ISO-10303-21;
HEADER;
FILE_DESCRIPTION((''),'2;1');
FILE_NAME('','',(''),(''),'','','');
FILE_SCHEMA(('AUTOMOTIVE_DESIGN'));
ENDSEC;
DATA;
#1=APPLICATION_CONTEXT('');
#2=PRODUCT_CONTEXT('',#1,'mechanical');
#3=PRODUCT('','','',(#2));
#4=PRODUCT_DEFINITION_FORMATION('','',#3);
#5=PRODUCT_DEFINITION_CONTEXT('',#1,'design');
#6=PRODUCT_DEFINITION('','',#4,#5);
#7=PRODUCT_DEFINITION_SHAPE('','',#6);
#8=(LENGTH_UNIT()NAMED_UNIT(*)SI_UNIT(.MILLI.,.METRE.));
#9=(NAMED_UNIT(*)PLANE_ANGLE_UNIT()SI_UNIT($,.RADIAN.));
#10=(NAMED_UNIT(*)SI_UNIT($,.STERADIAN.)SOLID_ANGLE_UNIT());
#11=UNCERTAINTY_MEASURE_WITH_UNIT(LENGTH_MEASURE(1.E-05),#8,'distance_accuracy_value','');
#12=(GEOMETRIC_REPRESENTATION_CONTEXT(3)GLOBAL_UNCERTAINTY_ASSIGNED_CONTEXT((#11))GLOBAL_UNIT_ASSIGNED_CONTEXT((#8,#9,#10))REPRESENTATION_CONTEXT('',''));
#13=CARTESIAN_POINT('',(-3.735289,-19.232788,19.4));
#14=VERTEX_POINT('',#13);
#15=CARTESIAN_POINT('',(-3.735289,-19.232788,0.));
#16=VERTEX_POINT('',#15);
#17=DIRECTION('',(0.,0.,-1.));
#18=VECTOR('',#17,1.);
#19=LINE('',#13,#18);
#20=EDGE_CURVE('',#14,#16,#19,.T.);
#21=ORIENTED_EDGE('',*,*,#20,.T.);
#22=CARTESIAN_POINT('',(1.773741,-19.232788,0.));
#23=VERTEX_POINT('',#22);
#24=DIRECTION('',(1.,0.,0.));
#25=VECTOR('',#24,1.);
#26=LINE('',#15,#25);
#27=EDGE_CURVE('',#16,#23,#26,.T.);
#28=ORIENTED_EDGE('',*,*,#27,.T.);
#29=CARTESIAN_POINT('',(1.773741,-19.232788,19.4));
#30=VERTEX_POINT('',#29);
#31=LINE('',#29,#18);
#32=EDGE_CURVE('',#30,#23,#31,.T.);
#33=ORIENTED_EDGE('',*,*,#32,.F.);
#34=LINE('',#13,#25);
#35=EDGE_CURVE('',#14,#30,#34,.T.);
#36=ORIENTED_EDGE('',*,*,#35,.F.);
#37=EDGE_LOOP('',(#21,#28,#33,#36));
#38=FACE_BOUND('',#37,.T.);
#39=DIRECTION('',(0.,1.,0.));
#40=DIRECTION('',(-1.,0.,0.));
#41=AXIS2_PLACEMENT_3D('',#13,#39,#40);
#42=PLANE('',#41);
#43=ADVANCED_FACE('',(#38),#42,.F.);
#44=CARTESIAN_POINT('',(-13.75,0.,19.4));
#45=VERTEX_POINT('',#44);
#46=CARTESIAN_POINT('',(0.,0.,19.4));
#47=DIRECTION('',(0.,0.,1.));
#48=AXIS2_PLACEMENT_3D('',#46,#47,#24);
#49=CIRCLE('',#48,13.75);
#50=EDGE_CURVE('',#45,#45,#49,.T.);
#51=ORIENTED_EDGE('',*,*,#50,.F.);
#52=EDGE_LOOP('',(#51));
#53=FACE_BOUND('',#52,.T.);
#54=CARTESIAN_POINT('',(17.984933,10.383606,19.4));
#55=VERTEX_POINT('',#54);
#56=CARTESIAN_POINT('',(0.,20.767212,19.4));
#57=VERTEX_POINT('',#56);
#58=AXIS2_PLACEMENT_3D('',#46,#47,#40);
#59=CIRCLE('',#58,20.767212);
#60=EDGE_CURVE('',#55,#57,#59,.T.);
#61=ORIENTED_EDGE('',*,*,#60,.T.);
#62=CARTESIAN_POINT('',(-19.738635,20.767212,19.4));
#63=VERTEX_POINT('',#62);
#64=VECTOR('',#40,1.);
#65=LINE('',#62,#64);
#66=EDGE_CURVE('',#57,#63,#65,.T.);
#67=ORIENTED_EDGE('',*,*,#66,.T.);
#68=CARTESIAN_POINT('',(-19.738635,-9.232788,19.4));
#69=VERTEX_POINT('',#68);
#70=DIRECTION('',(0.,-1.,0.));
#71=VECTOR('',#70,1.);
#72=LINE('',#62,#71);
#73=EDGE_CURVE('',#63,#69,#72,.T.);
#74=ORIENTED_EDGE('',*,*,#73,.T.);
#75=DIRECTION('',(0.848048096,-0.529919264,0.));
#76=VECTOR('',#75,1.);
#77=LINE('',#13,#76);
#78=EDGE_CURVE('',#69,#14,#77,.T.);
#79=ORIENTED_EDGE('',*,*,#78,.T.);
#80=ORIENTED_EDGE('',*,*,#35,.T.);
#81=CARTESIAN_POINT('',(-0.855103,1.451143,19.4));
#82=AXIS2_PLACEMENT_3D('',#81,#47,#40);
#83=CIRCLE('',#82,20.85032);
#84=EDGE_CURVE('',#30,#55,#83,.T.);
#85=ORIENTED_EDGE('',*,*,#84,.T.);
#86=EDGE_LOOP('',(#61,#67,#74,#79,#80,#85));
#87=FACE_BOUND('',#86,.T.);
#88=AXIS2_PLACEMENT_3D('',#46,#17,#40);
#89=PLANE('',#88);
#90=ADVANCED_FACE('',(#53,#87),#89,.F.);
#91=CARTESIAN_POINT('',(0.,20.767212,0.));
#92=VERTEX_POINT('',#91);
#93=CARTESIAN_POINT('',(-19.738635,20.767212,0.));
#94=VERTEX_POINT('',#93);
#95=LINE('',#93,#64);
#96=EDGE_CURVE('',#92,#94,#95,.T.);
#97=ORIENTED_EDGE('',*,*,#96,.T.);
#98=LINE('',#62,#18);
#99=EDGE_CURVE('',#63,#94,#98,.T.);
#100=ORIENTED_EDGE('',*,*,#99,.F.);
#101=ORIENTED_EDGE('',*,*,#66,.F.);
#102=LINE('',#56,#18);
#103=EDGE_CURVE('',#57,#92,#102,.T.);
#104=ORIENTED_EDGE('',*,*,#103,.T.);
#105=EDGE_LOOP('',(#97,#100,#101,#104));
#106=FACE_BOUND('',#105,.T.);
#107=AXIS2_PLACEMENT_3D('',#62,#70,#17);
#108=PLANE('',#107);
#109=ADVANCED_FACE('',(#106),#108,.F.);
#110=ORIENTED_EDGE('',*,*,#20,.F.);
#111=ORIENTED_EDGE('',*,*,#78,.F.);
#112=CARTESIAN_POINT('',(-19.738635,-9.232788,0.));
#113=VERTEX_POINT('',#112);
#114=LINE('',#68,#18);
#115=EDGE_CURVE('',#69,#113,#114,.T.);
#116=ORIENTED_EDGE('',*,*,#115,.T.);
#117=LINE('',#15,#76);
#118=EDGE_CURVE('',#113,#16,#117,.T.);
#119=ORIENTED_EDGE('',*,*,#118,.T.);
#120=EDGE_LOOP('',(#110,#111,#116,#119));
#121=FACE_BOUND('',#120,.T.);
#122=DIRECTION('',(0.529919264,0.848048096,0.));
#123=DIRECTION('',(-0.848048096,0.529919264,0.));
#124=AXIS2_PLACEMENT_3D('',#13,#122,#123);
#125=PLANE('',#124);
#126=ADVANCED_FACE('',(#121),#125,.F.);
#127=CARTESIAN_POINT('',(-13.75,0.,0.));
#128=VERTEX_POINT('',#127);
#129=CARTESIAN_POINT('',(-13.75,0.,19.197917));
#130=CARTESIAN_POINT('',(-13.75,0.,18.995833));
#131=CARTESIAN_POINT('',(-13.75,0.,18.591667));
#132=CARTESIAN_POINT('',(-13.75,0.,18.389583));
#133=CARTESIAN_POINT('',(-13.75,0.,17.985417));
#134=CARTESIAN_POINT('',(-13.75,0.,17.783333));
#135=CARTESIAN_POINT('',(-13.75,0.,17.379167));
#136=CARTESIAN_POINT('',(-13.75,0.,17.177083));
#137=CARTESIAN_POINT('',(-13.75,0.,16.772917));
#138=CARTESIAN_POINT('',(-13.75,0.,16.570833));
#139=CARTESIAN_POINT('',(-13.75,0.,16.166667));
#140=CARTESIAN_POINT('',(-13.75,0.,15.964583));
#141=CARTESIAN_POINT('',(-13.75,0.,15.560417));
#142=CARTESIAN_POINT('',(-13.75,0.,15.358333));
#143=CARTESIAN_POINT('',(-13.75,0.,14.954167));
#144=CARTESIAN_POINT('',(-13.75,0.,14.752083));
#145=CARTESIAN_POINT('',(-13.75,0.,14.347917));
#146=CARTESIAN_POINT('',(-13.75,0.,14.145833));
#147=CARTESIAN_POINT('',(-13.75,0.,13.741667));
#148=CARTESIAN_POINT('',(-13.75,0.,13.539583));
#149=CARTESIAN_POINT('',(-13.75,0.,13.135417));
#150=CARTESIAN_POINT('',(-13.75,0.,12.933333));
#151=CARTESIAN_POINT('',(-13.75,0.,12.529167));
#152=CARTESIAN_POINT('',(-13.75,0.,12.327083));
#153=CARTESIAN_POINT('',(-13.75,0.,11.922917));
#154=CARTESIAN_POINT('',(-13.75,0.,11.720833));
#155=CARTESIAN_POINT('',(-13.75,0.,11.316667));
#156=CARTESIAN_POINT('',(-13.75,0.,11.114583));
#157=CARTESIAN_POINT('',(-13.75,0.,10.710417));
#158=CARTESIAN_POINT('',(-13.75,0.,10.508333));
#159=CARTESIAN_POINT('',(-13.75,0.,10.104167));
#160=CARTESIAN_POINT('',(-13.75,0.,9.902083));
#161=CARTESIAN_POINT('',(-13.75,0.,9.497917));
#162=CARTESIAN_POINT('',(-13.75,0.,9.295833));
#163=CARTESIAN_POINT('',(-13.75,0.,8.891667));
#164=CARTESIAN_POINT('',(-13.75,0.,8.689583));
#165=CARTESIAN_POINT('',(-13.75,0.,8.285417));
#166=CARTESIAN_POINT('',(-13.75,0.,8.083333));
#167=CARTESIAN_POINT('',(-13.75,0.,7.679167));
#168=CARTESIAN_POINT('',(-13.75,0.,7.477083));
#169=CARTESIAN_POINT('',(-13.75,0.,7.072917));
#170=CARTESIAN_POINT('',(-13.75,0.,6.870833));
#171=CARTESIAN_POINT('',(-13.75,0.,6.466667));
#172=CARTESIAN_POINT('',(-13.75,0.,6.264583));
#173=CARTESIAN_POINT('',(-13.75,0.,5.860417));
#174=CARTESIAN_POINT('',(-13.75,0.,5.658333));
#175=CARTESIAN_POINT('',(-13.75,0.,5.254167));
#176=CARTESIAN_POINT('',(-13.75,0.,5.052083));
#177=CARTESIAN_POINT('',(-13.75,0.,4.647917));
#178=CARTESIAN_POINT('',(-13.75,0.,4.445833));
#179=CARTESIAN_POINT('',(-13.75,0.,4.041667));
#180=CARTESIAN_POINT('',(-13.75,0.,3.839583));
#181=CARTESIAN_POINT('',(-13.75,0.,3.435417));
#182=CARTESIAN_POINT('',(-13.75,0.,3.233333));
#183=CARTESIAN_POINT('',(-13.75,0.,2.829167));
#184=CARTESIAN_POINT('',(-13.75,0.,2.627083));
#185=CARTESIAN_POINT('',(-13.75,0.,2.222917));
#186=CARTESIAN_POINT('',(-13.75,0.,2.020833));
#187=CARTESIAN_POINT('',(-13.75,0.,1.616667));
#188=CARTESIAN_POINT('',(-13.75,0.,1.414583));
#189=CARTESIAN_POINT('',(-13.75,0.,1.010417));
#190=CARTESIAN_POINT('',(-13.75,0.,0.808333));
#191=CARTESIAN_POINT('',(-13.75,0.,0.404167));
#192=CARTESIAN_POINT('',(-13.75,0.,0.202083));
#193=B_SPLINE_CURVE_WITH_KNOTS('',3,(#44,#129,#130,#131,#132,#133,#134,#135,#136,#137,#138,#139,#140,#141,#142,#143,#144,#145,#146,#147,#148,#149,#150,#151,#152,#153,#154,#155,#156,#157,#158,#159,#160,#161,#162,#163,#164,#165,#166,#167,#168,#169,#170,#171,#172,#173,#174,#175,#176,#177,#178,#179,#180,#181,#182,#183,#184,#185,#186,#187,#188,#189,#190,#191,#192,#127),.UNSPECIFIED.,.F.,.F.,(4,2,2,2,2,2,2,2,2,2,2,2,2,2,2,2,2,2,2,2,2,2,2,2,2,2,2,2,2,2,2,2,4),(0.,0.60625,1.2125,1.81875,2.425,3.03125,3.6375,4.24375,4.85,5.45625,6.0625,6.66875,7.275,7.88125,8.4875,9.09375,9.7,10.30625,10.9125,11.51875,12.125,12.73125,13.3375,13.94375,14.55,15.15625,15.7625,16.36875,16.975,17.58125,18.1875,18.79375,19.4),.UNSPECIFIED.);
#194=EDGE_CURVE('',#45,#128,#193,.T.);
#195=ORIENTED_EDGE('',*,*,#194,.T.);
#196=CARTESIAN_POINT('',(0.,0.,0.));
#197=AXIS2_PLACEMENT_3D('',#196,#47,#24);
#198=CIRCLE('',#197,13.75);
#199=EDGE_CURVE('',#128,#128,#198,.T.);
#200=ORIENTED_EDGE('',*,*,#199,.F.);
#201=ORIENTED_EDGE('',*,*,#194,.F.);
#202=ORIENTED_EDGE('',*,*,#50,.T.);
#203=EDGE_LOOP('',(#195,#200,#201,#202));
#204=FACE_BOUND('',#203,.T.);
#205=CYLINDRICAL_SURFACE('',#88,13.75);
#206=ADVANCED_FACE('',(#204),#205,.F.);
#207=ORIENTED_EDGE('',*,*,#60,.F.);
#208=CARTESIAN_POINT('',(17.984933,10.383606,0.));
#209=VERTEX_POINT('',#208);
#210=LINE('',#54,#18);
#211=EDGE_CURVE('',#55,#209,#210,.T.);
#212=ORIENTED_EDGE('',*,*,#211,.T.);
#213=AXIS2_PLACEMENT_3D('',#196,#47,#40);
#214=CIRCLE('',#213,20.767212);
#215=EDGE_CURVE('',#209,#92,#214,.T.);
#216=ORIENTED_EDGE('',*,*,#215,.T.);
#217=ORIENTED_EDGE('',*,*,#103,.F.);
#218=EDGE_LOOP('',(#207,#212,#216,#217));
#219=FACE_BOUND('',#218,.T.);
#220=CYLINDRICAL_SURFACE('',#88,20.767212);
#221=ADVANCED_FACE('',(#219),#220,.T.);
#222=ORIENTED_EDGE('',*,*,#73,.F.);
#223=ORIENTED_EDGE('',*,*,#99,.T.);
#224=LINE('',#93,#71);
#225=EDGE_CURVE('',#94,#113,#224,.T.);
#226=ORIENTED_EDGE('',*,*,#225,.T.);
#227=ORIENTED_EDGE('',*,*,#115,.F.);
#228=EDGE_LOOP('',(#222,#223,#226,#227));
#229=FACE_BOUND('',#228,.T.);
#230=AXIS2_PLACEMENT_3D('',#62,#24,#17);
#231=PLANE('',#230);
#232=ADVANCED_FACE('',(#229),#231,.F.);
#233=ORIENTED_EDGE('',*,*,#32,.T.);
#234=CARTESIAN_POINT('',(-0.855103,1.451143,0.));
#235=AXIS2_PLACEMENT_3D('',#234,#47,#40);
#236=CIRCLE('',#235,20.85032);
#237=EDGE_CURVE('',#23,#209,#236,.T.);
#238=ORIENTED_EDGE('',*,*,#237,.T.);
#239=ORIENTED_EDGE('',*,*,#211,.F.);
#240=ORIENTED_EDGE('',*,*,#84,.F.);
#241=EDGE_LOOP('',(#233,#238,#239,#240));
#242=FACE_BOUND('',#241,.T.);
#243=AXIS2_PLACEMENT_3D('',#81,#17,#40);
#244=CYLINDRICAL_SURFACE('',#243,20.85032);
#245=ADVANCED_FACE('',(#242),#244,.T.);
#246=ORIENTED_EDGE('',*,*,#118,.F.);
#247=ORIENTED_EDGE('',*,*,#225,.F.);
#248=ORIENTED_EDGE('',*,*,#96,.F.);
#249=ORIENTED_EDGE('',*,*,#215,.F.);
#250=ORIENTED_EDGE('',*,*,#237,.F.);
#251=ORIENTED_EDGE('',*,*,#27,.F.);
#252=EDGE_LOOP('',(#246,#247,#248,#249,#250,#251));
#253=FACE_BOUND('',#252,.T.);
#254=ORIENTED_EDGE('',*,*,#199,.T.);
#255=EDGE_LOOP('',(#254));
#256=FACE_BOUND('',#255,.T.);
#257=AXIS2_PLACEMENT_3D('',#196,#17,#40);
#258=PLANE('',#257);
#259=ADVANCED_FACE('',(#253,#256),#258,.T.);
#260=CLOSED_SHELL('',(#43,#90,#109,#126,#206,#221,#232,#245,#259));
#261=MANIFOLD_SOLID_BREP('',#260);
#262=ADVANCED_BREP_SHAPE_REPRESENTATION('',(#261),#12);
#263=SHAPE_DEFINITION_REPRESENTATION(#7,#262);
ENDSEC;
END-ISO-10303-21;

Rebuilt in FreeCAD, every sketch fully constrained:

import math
import FreeCAD as App
import Part
import Sketcher
Q = App.Units.Quantity

doc = App.newDocument("Part")
body = doc.addObject("PartDesign::Body", "Body")

sketch1 = doc.addObject("Sketcher::SketchObject", "Sketch")
body.addObject(sketch1)
sketch1.AttachmentSupport = (doc.XY_Plane, [""])
sketch1.MapMode = "FlatFace"
sketch1.addGeometry([
    Part.LineSegment(App.Vector(-20, 21, 0), App.Vector(-20, -9, 0)),
    Part.LineSegment(App.Vector(-20, -9, 0), App.Vector(-4, -19, 0)),
    Part.LineSegment(App.Vector(-4, -19, 0), App.Vector(2, -19, 0)),
    Part.ArcOfCircle(Part.Circle(App.Vector(-1, 1, 0), App.Vector(0, 0, 1), 21), math.radians(-83), math.radians(25)),
    Part.ArcOfCircle(Part.Circle(App.Vector(0, 0, 0), App.Vector(0, 0, 1), 21), math.radians(30), math.radians(90)),
    Part.LineSegment(App.Vector(0, 21, 0), App.Vector(-20, 21, 0)),
    Part.Circle(App.Vector(0, 0, 0), App.Vector(0, 0, 1), 14),
], False)
sketch1.addConstraint([
    Sketcher.Constraint("Coincident", 0, 2, 1, 1),
    Sketcher.Constraint("Coincident", 1, 2, 2, 1),
    Sketcher.Constraint("Coincident", 2, 2, 3, 1),
    Sketcher.Constraint("Coincident", 3, 2, 4, 1),
    Sketcher.Constraint("Tangent", 4, 2, 5, 1),
    Sketcher.Constraint("Coincident", 5, 2, 0, 1),
    Sketcher.Constraint("Vertical", 0),
    Sketcher.Constraint("Horizontal", 2),
    Sketcher.Constraint("Horizontal", 5),
    Sketcher.Constraint("Coincident", 4, 3, -1, 1),
    Sketcher.Constraint("Coincident", 6, 3, -1, 1),
    Sketcher.Constraint("Diameter", 6, Q("27.5 mm")),
    Sketcher.Constraint("DistanceY", 0, 2, 0, 1, Q("30 mm")),
    Sketcher.Constraint("Angle", 1, Q("-32 deg")),
    Sketcher.Constraint("DistanceY", 1, 2, 0, 2, Q("10 mm")),
    Sketcher.Constraint("Radius", 3, Q("20.85032 mm")),
    Sketcher.Constraint("Radius", 4, Q("20.767212 mm")),
    Sketcher.Constraint("DistanceX", 2, 1, 2, 2, Q("5.509031 mm")),
    Sketcher.Constraint("DistanceX", 5, 2, 5, 1, Q("19.738635 mm")),
    Sketcher.Constraint("DistanceX", 0, 2, 3, 3, Q("18.883531 mm")),
])
pad1 = doc.addObject("PartDesign::Pad", "Pad")
body.addObject(pad1)
pad1.Profile = sketch1
pad1.Length = 19.4

doc.recompute()
